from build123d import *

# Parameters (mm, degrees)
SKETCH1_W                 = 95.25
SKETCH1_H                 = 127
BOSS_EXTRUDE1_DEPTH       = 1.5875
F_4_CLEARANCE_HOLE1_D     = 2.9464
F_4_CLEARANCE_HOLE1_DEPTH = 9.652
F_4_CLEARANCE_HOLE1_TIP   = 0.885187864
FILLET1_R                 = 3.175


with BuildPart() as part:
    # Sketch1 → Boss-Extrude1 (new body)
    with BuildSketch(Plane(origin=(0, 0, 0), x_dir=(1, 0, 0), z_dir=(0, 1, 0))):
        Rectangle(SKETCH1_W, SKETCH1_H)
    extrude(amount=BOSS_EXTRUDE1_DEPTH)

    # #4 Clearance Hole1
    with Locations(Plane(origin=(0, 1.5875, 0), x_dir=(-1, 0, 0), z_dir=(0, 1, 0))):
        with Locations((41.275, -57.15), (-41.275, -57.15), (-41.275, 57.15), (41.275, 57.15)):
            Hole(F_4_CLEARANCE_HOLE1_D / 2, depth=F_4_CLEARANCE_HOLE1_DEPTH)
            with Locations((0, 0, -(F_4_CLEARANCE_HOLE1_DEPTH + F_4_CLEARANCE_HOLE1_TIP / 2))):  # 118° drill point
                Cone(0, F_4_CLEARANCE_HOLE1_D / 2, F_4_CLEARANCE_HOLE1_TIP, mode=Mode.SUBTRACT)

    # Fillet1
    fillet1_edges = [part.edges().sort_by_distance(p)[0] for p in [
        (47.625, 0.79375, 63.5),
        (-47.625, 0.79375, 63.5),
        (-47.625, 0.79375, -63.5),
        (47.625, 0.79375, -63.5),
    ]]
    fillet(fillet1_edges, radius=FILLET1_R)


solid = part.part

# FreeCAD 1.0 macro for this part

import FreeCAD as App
import Part
import Sketcher
from FreeCAD import Vector
Q = App.Units.Quantity


def edges_at(feature, points):
    """Names of the edges that pass closest to the given points."""
    edges = feature.Shape.Edges
    near = lambda p: min(range(len(edges)), key=lambda i: edges[i].distToShape(Part.Vertex(*p))[0])
    return sorted({f"Edge{near(p) + 1}" for p in points})

doc = App.newDocument("Part")
body = doc.addObject("PartDesign::Body", "Body")

# Sketch on XZ plane
sketch1 = body.newObject("Sketcher::SketchObject", "Sketch")
sketch1.AttachmentSupport = (doc.getObject("XZ_Plane"), [""])
sketch1.MapMode = "FlatFace"
sketch1.addGeometry([
    Part.LineSegment(Vector(-48, -64, 0), Vector(-48, 64, 0)),
    Part.LineSegment(Vector(-48, 64, 0), Vector(48, 64, 0)),
    Part.LineSegment(Vector(48, 64, 0), Vector(48, -64, 0)),
    Part.LineSegment(Vector(48, -64, 0), Vector(-48, -64, 0)),
], False)
sketch1.addConstraint([
    Sketcher.Constraint("Coincident", 0, 2, 1, 1),
    Sketcher.Constraint("Coincident", 1, 2, 2, 1),
    Sketcher.Constraint("Coincident", 2, 2, 3, 1),
    Sketcher.Constraint("Coincident", 3, 2, 0, 1),
    Sketcher.Constraint("Vertical", 0),
    Sketcher.Constraint("Horizontal", 1),
    Sketcher.Constraint("Vertical", 2),
    Sketcher.Constraint("Horizontal", 3),
    Sketcher.Constraint("Symmetric", 0, 2, 2, 2, -1, 1),
    Sketcher.Constraint("DistanceY", 0, 1, 0, 2, Q("5 in")),
    Sketcher.Constraint("DistanceX", 1, 1, 1, 2, Q("3.75 in")),
])
pad1 = body.newObject("PartDesign::Pad", "Pad")
pad1.Profile = sketch1
pad1.Length = Q("0.0625 in")
pad1.Reversed = True

# Sketch on XZ plane
sketch2 = body.newObject("Sketcher::SketchObject", "Sketch001")
sketch2.AttachmentSupport = (doc.getObject("XZ_Plane"), [""])
sketch2.MapMode = "FlatFace"
sketch2.AttachmentOffset = App.Placement(Vector(0, 0, -0.0625 * 25.4), App.Rotation())
sketch2.addGeometry([
    Part.Circle(Vector(-41.3, -57.1, 0), Vector(0, 0, 1), 1.5),
    Part.Circle(Vector(41.3, -57.1, 0), Vector(0, 0, 1), 1.5),
    Part.Circle(Vector(41.3, 57.1, 0), Vector(0, 0, 1), 1.5),
    Part.Circle(Vector(-41.3, 57.1, 0), Vector(0, 0, 1), 1.5),
], False)
sketch2.addConstraint([
    Sketcher.Constraint("Equal", 0, 1),
    Sketcher.Constraint("Equal", 1, 2),
    Sketcher.Constraint("Equal", 2, 3),
    Sketcher.Constraint("Symmetric", 0, 3, 2, 3, -1, 1),
    Sketcher.Constraint("Symmetric", 1, 3, 3, 3, -1, 1),
    Sketcher.Constraint("Symmetric", 0, 3, 1, 3, -2),
    Sketcher.Constraint("Diameter", 0, Q("0.116 in")),
    Sketcher.Constraint("DistanceY", 1, 3, 2, 3, Q("4.5 in")),
    Sketcher.Constraint("DistanceX", 0, 3, 1, 3, Q("3.25 in")),
])
doc.recompute()
hole = body.newObject("PartDesign::Hole", "Hole")
hole.Profile = sketch2
hole.ThreadType = "None"
hole.Diameter = Q("0.116 in")
hole.DepthType = "Dimension"
hole.Depth = Q("0.38 in")
hole.DrillPoint = "Angled"
hole.DrillPointAngle = 118
hole.Reversed = True
doc.recompute()

fillet = body.newObject("PartDesign::Fillet", "Fillet")
fillet.Base = (hole, edges_at(hole, [
    (47.625, 0.794, 63.5),
    (-47.625, 0.794, 63.5),
    (-47.625, 0.794, -63.5),
    (47.625, 0.794, -63.5),
]))
fillet.Radius = Q("0.125 in")

doc.recompute()
